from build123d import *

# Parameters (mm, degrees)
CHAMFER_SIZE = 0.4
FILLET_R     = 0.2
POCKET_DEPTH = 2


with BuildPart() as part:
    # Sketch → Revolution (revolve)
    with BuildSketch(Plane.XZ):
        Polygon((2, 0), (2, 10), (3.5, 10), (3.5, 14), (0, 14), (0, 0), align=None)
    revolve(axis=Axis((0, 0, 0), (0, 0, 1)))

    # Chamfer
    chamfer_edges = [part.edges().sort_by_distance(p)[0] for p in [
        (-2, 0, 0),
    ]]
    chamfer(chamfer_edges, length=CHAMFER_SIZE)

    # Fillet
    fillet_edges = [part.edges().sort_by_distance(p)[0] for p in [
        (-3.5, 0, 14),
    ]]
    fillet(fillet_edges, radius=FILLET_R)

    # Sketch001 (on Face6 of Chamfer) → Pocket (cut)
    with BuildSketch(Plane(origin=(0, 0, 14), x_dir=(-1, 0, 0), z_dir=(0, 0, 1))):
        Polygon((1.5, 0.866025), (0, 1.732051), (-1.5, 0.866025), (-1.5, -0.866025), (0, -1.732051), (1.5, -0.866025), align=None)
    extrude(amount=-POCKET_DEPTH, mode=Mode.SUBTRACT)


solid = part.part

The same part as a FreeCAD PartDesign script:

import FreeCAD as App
import Part
import Sketcher

V = App.Vector
Q = App.Units.Quantity


def edges_at(feature, points):
    """Names of the edges that pass closest to the given points."""
    edges = feature.Shape.Edges
    near = lambda p: min(range(len(edges)), key=lambda i: edges[i].distToShape(Part.Vertex(*p))[0])
    return sorted({f"Edge{near(p) + 1}" for p in points})


def add_polygon(sketch, points):
    """Adds a closed chain of lines whose ends are joined by coincident constraints."""
    first, n = sketch.GeometryCount, len(points)
    for a, b in zip(points, points[1:] + points[:1]):
        sketch.addGeometry(Part.LineSegment(App.Vector(*a, 0), App.Vector(*b, 0)), False)
    for i in range(n):
        sketch.addConstraint(Sketcher.Constraint("Coincident", first + i, 2, first + (i + 1) % n, 1))

doc = App.newDocument("Part")
params = doc.addObject("Spreadsheet::Sheet", "Params")
for row, (alias, value) in enumerate([
    ("sketch1_width", "2 mm"),
    ("sketch1_height", "10 mm"),
    ("sketch1_height2", "4 mm"),
    ("sketch1_width2", "1.5 mm"),
    ("revolution_angle", "360 deg"),
    ("chamfer_size", "0.4 mm"),
    ("fillet_radius", "0.2 mm"),
    ("pocket1_length", "2 mm"),
], start=1):
    params.set(f"A{row}", alias)
    params.set(f"B{row}", "=" + value)
    params.setAlias(f"B{row}", alias)

body = doc.addObject("PartDesign::Body", "Body")

# Sketch on XZ plane
sketch1 = body.newObject("Sketcher::SketchObject", "Sketch")
sketch1.AttachmentSupport = (doc.getObject("XZ_Plane"), [""])
sketch1.MapMode = "FlatFace"
add_polygon(sketch1, [(2, 0), (2, 10), (3.5, 10), (3.5, 14), (0, 14), (0, 0)])  # lines 0-5
sketch1.addConstraint([
    Sketcher.Constraint("Vertical", 0),
    Sketcher.Constraint("Horizontal", 1),
    Sketcher.Constraint("Vertical", 2),
    Sketcher.Constraint("Horizontal", 3),
    Sketcher.Constraint("Vertical", 4),
    Sketcher.Constraint("Horizontal", 5),
    Sketcher.Constraint("Coincident", 4, 2, -1, 1),
    Sketcher.Constraint("DistanceX", 5, 1, 5, 2, Q("2 mm")),
    Sketcher.Constraint("DistanceY", 0, 1, 0, 2, Q("10 mm")),
    Sketcher.Constraint("DistanceY", 2, 1, 2, 2, Q("4 mm")),
    Sketcher.Constraint("DistanceX", 1, 1, 1, 2, Q("1.5 mm")),
])
sketch1.setExpression("Constraints[13]", "Params.sketch1_width")
sketch1.setExpression("Constraints[14]", "Params.sketch1_height")
sketch1.setExpression("Constraints[15]", "Params.sketch1_height2")
sketch1.setExpression("Constraints[16]", "Params.sketch1_width2")
revolution = body.newObject("PartDesign::Revolution", "Revolution")
revolution.Profile = sketch1
revolution.ReferenceAxis = (sketch1, ["V_Axis"])
revolution.setExpression("Angle", "Params.revolution_angle")
doc.recompute()

chamfer = body.newObject("PartDesign::Chamfer", "Chamfer")
chamfer.Base = (revolution, edges_at(revolution, [(-2, 0, 0)]))
chamfer.setExpression("Size", "Params.chamfer_size")
doc.recompute()

fillet = body.newObject("PartDesign::Fillet", "Fillet")
fillet.Base = (chamfer, edges_at(chamfer, [(-3.5, 0, 14)]))
fillet.setExpression("Radius", "Params.fillet_radius")

# Sketch on XY plane
sketch2 = body.newObject("Sketcher::SketchObject", "Sketch001")
sketch2.AttachmentSupport = (doc.getObject("XY_Plane"), [""])
sketch2.MapMode = "FlatFace"
sketch2.AttachmentOffset = App.Placement(V(0, 0, 14), App.Rotation())
add_polygon(sketch2, [(-1.5, -0.9), (0, -1.7), (1.5, -0.9), (1.5, 0.9), (0, 1.7), (-1.5, 0.9)])  # lines 0-5
sketch2.addConstraint([
    Sketcher.Constraint("Vertical", 2),
    Sketcher.Constraint("Vertical", 5),
    Sketcher.Constraint("Symmetric", 0, 2, 3, 2, -1, 1),
    Sketcher.Constraint("Symmetric", 1, 2, 4, 2, -1, 1),
    Sketcher.Constraint("PointOnObject", 0, 2, -2),
    Sketcher.Constraint("Parallel", 0, 3),
    Sketcher.Constraint("Horizontal", 2, 2, 4, 2),
    Sketcher.Constraint("Angle", 0, Q("-30.000017 deg")),
    Sketcher.Constraint("DistanceX", 4, 2, 2, 2, Q("3 mm")),
    Sketcher.Constraint("DistanceY", 2, 1, 2, 2, Q("1.73205 mm")),
])
pocket1 = body.newObject("PartDesign::Pocket", "Pocket")
pocket1.Profile = sketch2
pocket1.setExpression("Length", "Params.pocket1_length")

doc.recompute()
